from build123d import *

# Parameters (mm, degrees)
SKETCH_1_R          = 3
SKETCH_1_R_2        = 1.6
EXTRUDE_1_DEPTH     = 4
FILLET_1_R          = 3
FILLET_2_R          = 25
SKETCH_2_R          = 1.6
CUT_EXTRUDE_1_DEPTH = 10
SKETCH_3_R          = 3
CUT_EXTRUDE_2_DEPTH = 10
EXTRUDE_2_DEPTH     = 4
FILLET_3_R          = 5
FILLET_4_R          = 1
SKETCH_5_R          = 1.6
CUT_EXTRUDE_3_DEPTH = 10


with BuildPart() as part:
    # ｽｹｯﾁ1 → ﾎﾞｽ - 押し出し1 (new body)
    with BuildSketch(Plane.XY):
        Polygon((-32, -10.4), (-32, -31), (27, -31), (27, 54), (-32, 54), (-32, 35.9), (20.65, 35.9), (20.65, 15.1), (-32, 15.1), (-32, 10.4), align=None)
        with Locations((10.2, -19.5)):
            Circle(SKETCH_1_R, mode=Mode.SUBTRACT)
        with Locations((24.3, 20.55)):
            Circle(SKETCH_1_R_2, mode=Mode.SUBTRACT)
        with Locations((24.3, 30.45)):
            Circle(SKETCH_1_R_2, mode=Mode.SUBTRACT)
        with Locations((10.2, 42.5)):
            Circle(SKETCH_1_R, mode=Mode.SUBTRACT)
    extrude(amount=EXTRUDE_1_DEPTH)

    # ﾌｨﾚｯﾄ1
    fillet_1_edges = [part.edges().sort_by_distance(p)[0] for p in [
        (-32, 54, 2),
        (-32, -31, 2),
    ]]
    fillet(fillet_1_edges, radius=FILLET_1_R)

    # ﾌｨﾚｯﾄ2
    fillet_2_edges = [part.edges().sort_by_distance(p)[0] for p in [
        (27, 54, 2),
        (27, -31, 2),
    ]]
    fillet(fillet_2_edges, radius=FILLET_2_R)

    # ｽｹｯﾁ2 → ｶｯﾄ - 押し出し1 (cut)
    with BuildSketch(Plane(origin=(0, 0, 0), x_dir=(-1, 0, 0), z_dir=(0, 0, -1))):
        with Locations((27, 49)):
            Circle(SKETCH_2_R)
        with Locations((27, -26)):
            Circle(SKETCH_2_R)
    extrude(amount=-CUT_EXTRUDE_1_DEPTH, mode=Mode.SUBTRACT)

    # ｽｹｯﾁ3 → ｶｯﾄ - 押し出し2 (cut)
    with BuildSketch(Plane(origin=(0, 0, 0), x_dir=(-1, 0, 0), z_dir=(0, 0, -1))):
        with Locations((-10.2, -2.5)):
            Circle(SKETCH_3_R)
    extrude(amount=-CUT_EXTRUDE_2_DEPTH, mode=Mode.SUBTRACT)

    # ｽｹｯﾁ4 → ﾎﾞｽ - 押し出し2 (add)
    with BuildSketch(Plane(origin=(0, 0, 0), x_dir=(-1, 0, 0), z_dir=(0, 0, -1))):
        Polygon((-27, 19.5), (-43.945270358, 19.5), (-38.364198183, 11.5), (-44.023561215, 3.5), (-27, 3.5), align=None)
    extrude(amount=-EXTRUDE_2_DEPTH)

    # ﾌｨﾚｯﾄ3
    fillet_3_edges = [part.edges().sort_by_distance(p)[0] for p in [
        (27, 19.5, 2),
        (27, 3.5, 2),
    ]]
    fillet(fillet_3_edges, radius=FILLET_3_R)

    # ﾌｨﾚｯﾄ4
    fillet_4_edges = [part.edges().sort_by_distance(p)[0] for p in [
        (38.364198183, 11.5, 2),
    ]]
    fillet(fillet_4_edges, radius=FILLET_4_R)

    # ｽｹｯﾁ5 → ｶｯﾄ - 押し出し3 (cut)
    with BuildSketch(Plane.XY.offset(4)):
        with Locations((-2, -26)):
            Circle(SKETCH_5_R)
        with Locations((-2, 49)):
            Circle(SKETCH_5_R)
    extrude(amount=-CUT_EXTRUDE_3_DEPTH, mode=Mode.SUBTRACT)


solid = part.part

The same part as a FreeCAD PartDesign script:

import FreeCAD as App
import Part
import Sketcher

V = App.Vector


def edges_at(feature, points):
    """Names of the edges that pass closest to the given points."""
    edges = feature.Shape.Edges
    near = lambda p: min(range(len(edges)), key=lambda i: edges[i].distToShape(Part.Vertex(*p))[0])
    return sorted({f"Edge{near(p) + 1}" for p in points})

doc = App.newDocument("Part")
body = doc.addObject("PartDesign::Body", "Body")

sketch1 = body.newObject("Sketcher::SketchObject", "Sketch")
sketch1.AttachmentSupport = (doc.getObject("XY_Plane"), [""])
sketch1.MapMode = "FlatFace"
sketch1.addGeometry(Part.LineSegment(V(-32, -31, 0), V(27, -31, 0)), False)
sketch1.addGeometry(Part.LineSegment(V(27, -31, 0), V(27, 54, 0)), False)
sketch1.addGeometry(Part.LineSegment(V(27, 54, 0), V(-32, 54, 0)), False)
sketch1.addGeometry(Part.LineSegment(V(-32, 54, 0), V(-32, 35.9, 0)), False)
sketch1.addGeometry(Part.LineSegment(V(-32, 35.9, 0), V(20.6, 35.9, 0)), False)
sketch1.addGeometry(Part.LineSegment(V(20.6, 35.9, 0), V(20.6, 15.1, 0)), False)
sketch1.addGeometry(Part.LineSegment(V(20.6, 15.1, 0), V(-32, 15.1, 0)), False)
sketch1.addGeometry(Part.LineSegment(V(-32, 15.1, 0), V(-32, -31, 0)), False)
sketch1.addGeometry(Part.Circle(V(10.2, -19.5, 0), V(0, 0, 1), 3), False)
sketch1.addGeometry(Part.Circle(V(10.2, 42.5, 0), V(0, 0, 1), 3), False)
sketch1.addGeometry(Part.Circle(V(24.3, 20.6, 0), V(0, 0, 1), 1.6), False)
sketch1.addGeometry(Part.Circle(V(24.3, 30.4, 0), V(0, 0, 1), 1.6), False)
sketch1.addConstraint(Sketcher.Constraint("Coincident", 0, 2, 1, 1))
sketch1.addConstraint(Sketcher.Constraint("Coincident", 1, 2, 2, 1))
sketch1.addConstraint(Sketcher.Constraint("Coincident", 2, 2, 3, 1))
sketch1.addConstraint(Sketcher.Constraint("Coincident", 3, 2, 4, 1))
sketch1.addConstraint(Sketcher.Constraint("Coincident", 4, 2, 5, 1))
sketch1.addConstraint(Sketcher.Constraint("Coincident", 5, 2, 6, 1))
sketch1.addConstraint(Sketcher.Constraint("Coincident", 6, 2, 7, 1))
sketch1.addConstraint(Sketcher.Constraint("Coincident", 7, 2, 0, 1))
sketch1.addConstraint(Sketcher.Constraint("Horizontal", 0))
sketch1.addConstraint(Sketcher.Constraint("Vertical", 1))
sketch1.addConstraint(Sketcher.Constraint("Horizontal", 2))
sketch1.addConstraint(Sketcher.Constraint("Vertical", 3))
sketch1.addConstraint(Sketcher.Constraint("Horizontal", 4))
sketch1.addConstraint(Sketcher.Constraint("Vertical", 5))
sketch1.addConstraint(Sketcher.Constraint("Horizontal", 6))
sketch1.addConstraint(Sketcher.Constraint("Vertical", 7))
sketch1.addConstraint(Sketcher.Constraint("Equal", 8, 9))
sketch1.addConstraint(Sketcher.Constraint("Equal", 10, 11))
sketch1.addConstraint(Sketcher.Constraint("Vertical", 8, 3, 9, 3))
sketch1.addConstraint(Sketcher.Constraint("Vertical", 10, 3, 11, 3))
sketch1.addConstraint(Sketcher.Constraint("Vertical", 3, 2, 6, 2))
sketch1.addConstraint(Sketcher.Constraint("Diameter", 8, 6.0))
sketch1.addConstraint(Sketcher.Constraint("Diameter", 10, 3.2))
sketch1.addConstraint(Sketcher.Constraint("DistanceX", 0, 1, 0, 2, 59.0))
sketch1.addConstraint(Sketcher.Constraint("DistanceY", 1, 1, 1, 2, 85.0))
sketch1.addConstraint(Sketcher.Constraint("DistanceY", 3, 2, 3, 1, 18.1))
sketch1.addConstraint(Sketcher.Constraint("DistanceY", 5, 2, 5, 1, 20.8))
sketch1.addConstraint(Sketcher.Constraint("DistanceX", -1, 1, 0, 2, 27.0))
sketch1.addConstraint(Sketcher.Constraint("DistanceY", 0, 2, -1, 1, 31.0))
sketch1.addConstraint(Sketcher.Constraint("DistanceY", 8, 3, 9, 3, 62.0))
sketch1.addConstraint(Sketcher.Constraint("DistanceX", 4, 1, 4, 2, 52.65))
sketch1.addConstraint(Sketcher.Constraint("DistanceX", -1, 1, 8, 3, 10.2))
sketch1.addConstraint(Sketcher.Constraint("DistanceY", 8, 3, -1, 1, 19.5))
sketch1.addConstraint(Sketcher.Constraint("DistanceX", -1, 1, 10, 3, 24.3))
sketch1.addConstraint(Sketcher.Constraint("DistanceY", 10, 3, 11, 3, 9.9))
sketch1.addConstraint(Sketcher.Constraint("DistanceY", -1, 1, 10, 3, 20.55))
pad1 = body.newObject("PartDesign::Pad", "Pad")
pad1.Profile = sketch1
pad1.Length = 4
doc.recompute()

fillet = body.newObject("PartDesign::Fillet", "Fillet")
fillet.Base = (pad1, edges_at(pad1, [(-32, 54, 2), (-32, -31, 2)]))
fillet.Radius = 3
doc.recompute()

fillet2 = body.newObject("PartDesign::Fillet", "Fillet001")
fillet2.Base = (fillet, edges_at(fillet, [(27, 54, 2), (27, -31, 2)]))
fillet2.Radius = 25

sketch2 = body.newObject("Sketcher::SketchObject", "Sketch001")
sketch2.AttachmentSupport = (doc.getObject("XY_Plane"), [""])
sketch2.MapMode = "FlatFace"
sketch2.addGeometry(Part.Circle(V(-27, 49, 0), V(0, 0, 1), 1.6), False)
sketch2.addGeometry(Part.Circle(V(-27, -26, 0), V(0, 0, 1), 1.6), False)
sketch2.addConstraint(Sketcher.Constraint("Equal", 0, 1))
sketch2.addConstraint(Sketcher.Constraint("Vertical", 0, 3, 1, 3))
sketch2.addConstraint(Sketcher.Constraint("Diameter", 0, 3.2))
sketch2.addConstraint(Sketcher.Constraint("DistanceX", 0, 3, -1, 1, 27.0))
sketch2.addConstraint(Sketcher.Constraint("DistanceY", -1, 1, 0, 3, 49.0))
sketch2.addConstraint(Sketcher.Constraint("DistanceY", 1, 3, -1, 1, 26.0))
pocket1 = body.newObject("PartDesign::Pocket", "Pocket")
pocket1.Profile = sketch2
pocket1.Length = 10
pocket1.Reversed = True

sketch3 = body.newObject("Sketcher::SketchObject", "Sketch002")
sketch3.AttachmentSupport = (doc.getObject("XY_Plane"), [""])
sketch3.MapMode = "FlatFace"
sketch3.addGeometry(Part.Circle(V(10.2, -2.5, 0), V(0, 0, 1), 3), False)
sketch3.addConstraint(Sketcher.Constraint("Diameter", 0, 6.0))
sketch3.addConstraint(Sketcher.Constraint("DistanceX", -1, 1, 0, 3, 10.2))
sketch3.addConstraint(Sketcher.Constraint("DistanceY", 0, 3, -1, 1, 2.5))
pocket2 = body.newObject("PartDesign::Pocket", "Pocket001")
pocket2.Profile = sketch3
pocket2.Length = 10
pocket2.Reversed = True

sketch4 = body.newObject("Sketcher::SketchObject", "Sketch003")
sketch4.AttachmentSupport = (doc.getObject("XY_Plane"), [""])
sketch4.MapMode = "FlatFace"
sketch4.addGeometry(Part.LineSegment(V(27, 20, 0), V(44, 20, 0)), False)
sketch4.addGeometry(Part.LineSegment(V(44, 20, 0), V(38, 12, 0)), False)
sketch4.addGeometry(Part.LineSegment(V(38, 12, 0), V(44, 4, 0)), False)
sketch4.addGeometry(Part.LineSegment(V(44, 4, 0), V(27, 4, 0)), False)
sketch4.addGeometry(Part.LineSegment(V(27, 4, 0), V(27, 20, 0)), False)
sketch4.addConstraint(Sketcher.Constraint("Coincident", 0, 2, 1, 1))
sketch4.addConstraint(Sketcher.Constraint("Coincident", 1, 2, 2, 1))
sketch4.addConstraint(Sketcher.Constraint("Coincident", 2, 2, 3, 1))
sketch4.addConstraint(Sketcher.Constraint("Coincident", 3, 2, 4, 1))
sketch4.addConstraint(Sketcher.Constraint("Coincident", 4, 2, 0, 1))
sketch4.addConstraint(Sketcher.Constraint("Horizontal", 0))
sketch4.addConstraint(Sketcher.Constraint("Horizontal", 3))
sketch4.addConstraint(Sketcher.Constraint("Vertical", 4))
sketch4.addConstraint(Sketcher.Constraint("DistanceY", 4, 1, 4, 2, 16.0))
sketch4.addConstraint(Sketcher.Constraint("DistanceX", -1, 1, 3, 2, 27.0))
sketch4.addConstraint(Sketcher.Constraint("DistanceY", 1, 2, 0, 2, 8.0))
sketch4.addConstraint(Sketcher.Constraint("DistanceY", -1, 1, 0, 2, 19.5))
sketch4.addConstraint(Sketcher.Constraint("DistanceX", 0, 1, 0, 2, 16.94527))
sketch4.addConstraint(Sketcher.Constraint("DistanceX", 3, 2, 3, 1, 17.023561))
sketch4.addConstraint(Sketcher.Constraint("DistanceX", -1, 1, 1, 2, 38.364198))
pad2 = body.newObject("PartDesign::Pad", "Pad001")
pad2.Profile = sketch4
pad2.Length = 4
doc.recompute()

fillet3 = body.newObject("PartDesign::Fillet", "Fillet002")
fillet3.Base = (pad2, edges_at(pad2, [(27, 19.5, 2), (27, 3.5, 2)]))
fillet3.Radius = 5
doc.recompute()

fillet4 = body.newObject("PartDesign::Fillet", "Fillet003")
fillet4.Base = (fillet3, edges_at(fillet3, [(38.364, 11.5, 2)]))
fillet4.Radius = 1

sketch5 = body.newObject("Sketcher::SketchObject", "Sketch004")
sketch5.AttachmentSupport = (doc.getObject("XY_Plane"), [""])
sketch5.MapMode = "FlatFace"
sketch5.AttachmentOffset = App.Placement(V(0, 0, 4), App.Rotation())
sketch5.addGeometry(Part.Circle(V(-2, -26, 0), V(0, 0, 1), 1.6), False)
sketch5.addGeometry(Part.Circle(V(-2, 49, 0), V(0, 0, 1), 1.6), False)
sketch5.addConstraint(Sketcher.Constraint("Equal", 0, 1))
sketch5.addConstraint(Sketcher.Constraint("Vertical", 0, 3, 1, 3))
sketch5.addConstraint(Sketcher.Constraint("Diameter", 0, 3.2))
sketch5.addConstraint(Sketcher.Constraint("DistanceX", 0, 3, -1, 1, 2.0))
sketch5.addConstraint(Sketcher.Constraint("DistanceY", 0, 3, -1, 1, 26.0))
sketch5.addConstraint(Sketcher.Constraint("DistanceY", -1, 1, 1, 3, 49.0))
pocket3 = body.newObject("PartDesign::Pocket", "Pocket002")
pocket3.Profile = sketch5
pocket3.Length = 10

doc.recompute()
